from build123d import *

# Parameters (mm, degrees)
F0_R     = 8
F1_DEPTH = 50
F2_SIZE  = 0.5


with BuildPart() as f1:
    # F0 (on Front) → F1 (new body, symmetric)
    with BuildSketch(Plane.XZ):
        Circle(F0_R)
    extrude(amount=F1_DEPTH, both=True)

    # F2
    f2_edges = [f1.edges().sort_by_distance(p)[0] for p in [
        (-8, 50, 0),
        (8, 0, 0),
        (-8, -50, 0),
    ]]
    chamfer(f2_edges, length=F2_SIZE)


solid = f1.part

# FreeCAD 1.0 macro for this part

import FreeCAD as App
import Part
import Sketcher
from FreeCAD import Vector

doc = App.newDocument("Part")
body = doc.addObject("PartDesign::Body", "Body")

# Sketch on XZ plane
sketch1 = body.newObject("Sketcher::SketchObject", "Sketch")
sketch1.AttachmentSupport = (doc.getObject("XZ_Plane"), [""])
sketch1.MapMode = "FlatFace"
sketch1.addGeometry(Part.Circle(Vector(0, 0, 0), Vector(0, 0, 1), 8), False)
sketch1.addConstraint([
    Sketcher.Constraint("Coincident", 0, 3, -1, 1),
    Sketcher.Constraint("Diameter", 0, 16.0),
])
pad1 = body.newObject("PartDesign::Pad", "Pad")
pad1.Profile = sketch1
pad1.Length = 100
pad1.Midplane = True
doc.recompute()

chamfer = body.newObject("PartDesign::Chamfer", "Chamfer")
chamfer.Base = (pad1, ["Edge1"])
chamfer.UseAllEdges = True
chamfer.Size = 0.5

doc.recompute()
